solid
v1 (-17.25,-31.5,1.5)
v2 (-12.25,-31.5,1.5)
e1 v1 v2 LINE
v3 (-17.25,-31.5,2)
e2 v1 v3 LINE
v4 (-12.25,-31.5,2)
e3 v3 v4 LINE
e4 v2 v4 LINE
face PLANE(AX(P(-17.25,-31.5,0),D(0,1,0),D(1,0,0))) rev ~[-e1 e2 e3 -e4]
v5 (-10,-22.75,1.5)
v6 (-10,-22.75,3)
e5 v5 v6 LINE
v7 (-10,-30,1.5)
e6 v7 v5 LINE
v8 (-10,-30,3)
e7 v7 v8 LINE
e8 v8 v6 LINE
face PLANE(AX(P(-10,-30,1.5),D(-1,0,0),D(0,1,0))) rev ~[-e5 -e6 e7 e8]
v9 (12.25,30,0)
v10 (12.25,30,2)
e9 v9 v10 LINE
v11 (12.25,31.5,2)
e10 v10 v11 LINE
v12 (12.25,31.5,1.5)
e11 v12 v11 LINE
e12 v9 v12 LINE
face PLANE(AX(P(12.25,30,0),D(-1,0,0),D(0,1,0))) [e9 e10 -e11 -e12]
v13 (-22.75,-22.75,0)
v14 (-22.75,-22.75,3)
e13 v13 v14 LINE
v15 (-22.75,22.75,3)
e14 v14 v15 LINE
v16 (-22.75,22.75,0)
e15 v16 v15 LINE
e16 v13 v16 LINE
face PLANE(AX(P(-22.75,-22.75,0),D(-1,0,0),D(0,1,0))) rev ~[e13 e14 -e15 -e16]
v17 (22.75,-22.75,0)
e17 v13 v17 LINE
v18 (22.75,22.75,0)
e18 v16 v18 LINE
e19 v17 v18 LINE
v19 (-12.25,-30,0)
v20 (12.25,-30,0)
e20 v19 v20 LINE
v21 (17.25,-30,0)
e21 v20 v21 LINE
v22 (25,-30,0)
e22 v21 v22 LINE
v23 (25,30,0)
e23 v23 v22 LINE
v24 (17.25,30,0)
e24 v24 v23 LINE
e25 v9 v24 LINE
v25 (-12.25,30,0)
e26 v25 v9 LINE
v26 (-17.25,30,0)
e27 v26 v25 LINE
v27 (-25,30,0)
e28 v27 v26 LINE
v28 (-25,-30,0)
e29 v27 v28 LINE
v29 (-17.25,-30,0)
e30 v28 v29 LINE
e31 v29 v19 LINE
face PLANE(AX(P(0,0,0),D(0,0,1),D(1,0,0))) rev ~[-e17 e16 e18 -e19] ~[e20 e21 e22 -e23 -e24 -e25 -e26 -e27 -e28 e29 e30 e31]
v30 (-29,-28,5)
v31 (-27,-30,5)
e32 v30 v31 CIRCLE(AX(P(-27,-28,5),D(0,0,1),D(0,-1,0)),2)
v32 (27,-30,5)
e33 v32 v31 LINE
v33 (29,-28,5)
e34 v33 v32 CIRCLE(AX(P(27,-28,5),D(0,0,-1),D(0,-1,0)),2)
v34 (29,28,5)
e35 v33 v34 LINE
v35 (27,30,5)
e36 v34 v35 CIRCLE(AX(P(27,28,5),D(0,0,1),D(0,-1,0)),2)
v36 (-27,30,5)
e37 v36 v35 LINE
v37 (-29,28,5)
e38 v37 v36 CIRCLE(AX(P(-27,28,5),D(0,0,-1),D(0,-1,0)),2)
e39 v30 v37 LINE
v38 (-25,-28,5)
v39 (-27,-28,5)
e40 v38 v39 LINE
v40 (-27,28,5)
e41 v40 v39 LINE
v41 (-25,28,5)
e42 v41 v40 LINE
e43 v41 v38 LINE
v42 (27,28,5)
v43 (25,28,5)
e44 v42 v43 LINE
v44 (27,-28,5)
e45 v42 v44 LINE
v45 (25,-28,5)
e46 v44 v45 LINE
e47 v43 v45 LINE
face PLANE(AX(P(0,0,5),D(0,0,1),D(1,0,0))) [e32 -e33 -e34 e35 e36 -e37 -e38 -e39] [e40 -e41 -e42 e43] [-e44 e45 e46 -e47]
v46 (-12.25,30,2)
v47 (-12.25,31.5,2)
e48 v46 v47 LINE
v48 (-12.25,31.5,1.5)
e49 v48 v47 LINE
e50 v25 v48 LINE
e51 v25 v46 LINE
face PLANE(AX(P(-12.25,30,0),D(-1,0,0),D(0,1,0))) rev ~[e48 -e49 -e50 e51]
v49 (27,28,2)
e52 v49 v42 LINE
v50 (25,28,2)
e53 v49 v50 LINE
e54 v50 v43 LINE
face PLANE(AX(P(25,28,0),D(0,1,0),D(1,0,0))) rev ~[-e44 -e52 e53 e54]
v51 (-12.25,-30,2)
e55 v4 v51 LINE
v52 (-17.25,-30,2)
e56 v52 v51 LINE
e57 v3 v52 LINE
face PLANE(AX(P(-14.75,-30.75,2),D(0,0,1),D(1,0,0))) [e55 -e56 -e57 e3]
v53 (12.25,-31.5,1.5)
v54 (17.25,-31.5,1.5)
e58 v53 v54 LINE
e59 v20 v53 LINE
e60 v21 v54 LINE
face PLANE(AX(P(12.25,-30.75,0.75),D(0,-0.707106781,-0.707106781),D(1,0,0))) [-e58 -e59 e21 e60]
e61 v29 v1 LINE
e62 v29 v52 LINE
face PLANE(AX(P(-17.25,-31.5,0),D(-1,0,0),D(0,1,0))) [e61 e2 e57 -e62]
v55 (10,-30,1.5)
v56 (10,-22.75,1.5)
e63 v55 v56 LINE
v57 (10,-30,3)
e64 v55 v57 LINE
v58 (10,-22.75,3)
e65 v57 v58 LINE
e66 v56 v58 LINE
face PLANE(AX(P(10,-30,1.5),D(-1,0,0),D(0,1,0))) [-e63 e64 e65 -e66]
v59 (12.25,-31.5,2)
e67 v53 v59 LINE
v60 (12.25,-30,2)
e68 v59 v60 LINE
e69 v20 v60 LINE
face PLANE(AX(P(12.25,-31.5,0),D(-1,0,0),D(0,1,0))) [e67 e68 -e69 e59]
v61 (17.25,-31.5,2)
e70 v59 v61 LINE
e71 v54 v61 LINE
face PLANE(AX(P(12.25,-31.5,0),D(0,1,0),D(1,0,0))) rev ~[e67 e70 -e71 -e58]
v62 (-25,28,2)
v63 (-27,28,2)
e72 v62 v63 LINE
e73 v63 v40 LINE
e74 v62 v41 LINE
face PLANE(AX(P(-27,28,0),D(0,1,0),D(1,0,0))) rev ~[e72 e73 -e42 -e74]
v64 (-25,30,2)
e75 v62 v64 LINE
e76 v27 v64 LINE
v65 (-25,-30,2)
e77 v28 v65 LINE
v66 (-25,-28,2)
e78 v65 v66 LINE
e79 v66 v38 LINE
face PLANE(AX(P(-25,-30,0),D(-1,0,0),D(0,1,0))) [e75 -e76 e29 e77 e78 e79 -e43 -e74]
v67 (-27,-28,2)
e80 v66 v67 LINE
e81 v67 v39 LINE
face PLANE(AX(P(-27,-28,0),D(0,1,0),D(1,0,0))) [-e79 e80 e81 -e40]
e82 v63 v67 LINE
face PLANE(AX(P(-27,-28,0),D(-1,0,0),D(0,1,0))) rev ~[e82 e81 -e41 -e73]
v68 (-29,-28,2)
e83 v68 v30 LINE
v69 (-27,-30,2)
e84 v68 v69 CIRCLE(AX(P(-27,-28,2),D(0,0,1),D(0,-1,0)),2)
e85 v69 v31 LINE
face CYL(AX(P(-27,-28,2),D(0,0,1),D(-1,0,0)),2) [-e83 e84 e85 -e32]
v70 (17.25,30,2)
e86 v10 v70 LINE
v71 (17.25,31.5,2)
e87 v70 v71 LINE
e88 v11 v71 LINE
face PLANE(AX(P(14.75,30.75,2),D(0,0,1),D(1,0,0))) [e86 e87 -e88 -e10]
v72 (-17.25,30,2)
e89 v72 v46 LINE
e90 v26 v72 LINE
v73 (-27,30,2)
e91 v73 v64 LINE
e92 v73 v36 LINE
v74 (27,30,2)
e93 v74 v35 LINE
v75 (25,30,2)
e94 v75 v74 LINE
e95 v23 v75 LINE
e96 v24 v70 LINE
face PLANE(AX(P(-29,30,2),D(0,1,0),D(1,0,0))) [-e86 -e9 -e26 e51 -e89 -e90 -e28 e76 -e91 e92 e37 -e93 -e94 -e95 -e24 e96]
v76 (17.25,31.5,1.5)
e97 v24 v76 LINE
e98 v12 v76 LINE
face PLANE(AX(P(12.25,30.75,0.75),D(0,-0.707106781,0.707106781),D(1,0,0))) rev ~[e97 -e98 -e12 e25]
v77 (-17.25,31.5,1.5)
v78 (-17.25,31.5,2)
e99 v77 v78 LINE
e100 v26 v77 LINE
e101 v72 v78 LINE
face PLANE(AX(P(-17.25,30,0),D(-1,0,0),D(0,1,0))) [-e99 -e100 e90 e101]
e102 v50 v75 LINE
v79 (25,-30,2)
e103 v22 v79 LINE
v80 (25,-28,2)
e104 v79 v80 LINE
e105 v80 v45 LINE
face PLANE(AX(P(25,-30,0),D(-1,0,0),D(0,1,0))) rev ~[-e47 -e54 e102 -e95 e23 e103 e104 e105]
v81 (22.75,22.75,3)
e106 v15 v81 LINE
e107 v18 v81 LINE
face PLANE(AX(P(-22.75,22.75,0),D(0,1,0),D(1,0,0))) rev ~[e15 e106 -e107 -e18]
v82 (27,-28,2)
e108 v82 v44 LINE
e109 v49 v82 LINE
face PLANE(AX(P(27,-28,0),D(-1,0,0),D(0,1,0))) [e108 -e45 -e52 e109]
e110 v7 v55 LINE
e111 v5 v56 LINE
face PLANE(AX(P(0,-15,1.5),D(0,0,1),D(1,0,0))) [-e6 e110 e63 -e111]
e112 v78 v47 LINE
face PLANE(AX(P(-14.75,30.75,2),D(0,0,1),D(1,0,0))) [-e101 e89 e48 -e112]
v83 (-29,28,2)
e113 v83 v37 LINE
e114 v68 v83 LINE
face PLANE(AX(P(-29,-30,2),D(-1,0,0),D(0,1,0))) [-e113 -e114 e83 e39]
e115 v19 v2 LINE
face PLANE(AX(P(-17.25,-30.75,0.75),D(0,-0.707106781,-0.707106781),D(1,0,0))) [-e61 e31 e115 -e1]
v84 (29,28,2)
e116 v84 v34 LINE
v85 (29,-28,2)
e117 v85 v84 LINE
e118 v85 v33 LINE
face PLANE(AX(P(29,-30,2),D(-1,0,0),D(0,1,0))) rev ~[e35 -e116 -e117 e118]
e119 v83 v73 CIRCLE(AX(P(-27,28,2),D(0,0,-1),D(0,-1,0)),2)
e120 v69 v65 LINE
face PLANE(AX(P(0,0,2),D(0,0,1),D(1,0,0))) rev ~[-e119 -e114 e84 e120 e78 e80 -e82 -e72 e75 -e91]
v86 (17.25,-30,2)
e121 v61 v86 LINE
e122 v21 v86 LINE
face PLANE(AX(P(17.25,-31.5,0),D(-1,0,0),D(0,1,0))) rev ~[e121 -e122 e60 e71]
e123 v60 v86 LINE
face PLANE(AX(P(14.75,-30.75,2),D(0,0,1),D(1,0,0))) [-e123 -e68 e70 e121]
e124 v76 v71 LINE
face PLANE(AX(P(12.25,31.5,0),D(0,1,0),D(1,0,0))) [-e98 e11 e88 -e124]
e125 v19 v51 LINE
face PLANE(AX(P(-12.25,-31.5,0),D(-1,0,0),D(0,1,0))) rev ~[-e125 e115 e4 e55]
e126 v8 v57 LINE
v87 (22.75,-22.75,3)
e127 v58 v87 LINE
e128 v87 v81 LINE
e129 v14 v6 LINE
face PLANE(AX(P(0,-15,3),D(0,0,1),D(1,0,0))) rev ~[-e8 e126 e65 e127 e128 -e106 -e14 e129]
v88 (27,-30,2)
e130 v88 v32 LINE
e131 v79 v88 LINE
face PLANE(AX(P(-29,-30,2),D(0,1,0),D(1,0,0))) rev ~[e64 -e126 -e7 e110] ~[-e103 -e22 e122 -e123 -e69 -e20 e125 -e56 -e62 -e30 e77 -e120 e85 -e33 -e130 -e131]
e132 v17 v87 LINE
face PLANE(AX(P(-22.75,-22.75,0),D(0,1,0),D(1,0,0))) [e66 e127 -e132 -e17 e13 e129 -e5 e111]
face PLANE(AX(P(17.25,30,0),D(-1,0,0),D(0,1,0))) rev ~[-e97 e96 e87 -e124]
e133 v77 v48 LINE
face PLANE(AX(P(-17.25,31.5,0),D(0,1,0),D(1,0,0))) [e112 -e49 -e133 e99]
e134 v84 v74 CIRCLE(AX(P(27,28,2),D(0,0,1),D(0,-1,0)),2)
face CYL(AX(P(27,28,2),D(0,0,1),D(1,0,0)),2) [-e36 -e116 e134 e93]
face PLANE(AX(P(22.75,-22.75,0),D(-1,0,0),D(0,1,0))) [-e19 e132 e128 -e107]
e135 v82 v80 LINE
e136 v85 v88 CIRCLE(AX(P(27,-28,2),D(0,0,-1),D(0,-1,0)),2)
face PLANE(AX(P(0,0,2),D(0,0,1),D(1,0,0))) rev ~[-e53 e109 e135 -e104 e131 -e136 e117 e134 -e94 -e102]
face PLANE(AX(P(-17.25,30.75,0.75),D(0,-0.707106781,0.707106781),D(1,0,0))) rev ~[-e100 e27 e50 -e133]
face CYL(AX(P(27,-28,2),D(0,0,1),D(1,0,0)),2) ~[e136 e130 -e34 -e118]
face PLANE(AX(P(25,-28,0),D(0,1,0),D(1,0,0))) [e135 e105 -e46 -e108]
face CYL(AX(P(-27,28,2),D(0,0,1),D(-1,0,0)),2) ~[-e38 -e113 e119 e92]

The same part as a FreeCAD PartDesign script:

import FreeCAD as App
import Part
import Sketcher
Q = App.Units.Quantity


def edges_at(feature, points):
    """Names of the edges that pass closest to the given points."""
    edges = feature.Shape.Edges
    near = lambda p: min(range(len(edges)), key=lambda i: edges[i].distToShape(Part.Vertex(*p))[0])
    return sorted({f"Edge{near(p) + 1}" for p in points})

doc = App.newDocument("Part")
body = doc.addObject("PartDesign::Body", "Body")

sketch1 = body.newObject("Sketcher::SketchObject", "Sketch")
sketch1.AttachmentSupport = (doc.getObject("XY_Plane"), [""])
sketch1.MapMode = "FlatFace"
sketch1.addGeometry([
    Part.LineSegment(App.Vector(-25, 30, 0), App.Vector(-25, -30, 0)),
    Part.LineSegment(App.Vector(-25, -30, 0), App.Vector(25, -30, 0)),
    Part.LineSegment(App.Vector(25, -30, 0), App.Vector(25, 30, 0)),
    Part.LineSegment(App.Vector(25, 30, 0), App.Vector(-25, 30, 0)),
], False)
sketch1.addConstraint([
    Sketcher.Constraint("Coincident", 0, 2, 1, 1),
    Sketcher.Constraint("Coincident", 1, 2, 2, 1),
    Sketcher.Constraint("Coincident", 2, 2, 3, 1),
    Sketcher.Constraint("Coincident", 3, 2, 0, 1),
    Sketcher.Constraint("Vertical", 0),
    Sketcher.Constraint("Horizontal", 1),
    Sketcher.Constraint("Vertical", 2),
    Sketcher.Constraint("Horizontal", 3),
    Sketcher.Constraint("Symmetric", 0, 2, 2, 2, -1, 1),
    Sketcher.Constraint("DistanceX", 1, 1, 1, 2, Q("50 mm")),
    Sketcher.Constraint("DistanceY", 0, 2, 0, 1, Q("60 mm")),
])
pad1 = body.newObject("PartDesign::Pad", "Pad")
pad1.Profile = sketch1
pad1.Length = 5

sketch2 = body.newObject("Sketcher::SketchObject", "Sketch001")
sketch2.AttachmentSupport = (doc.getObject("XY_Plane"), [""])
sketch2.MapMode = "FlatFace"
sketch2.AttachmentOffset = App.Placement(App.Vector(0, 0, 2), App.Rotation())
sketch2.addGeometry([
    Part.LineSegment(App.Vector(-29, 30, 0), App.Vector(-29, -30, 0)),
    Part.LineSegment(App.Vector(-29, -30, 0), App.Vector(29, -30, 0)),
    Part.LineSegment(App.Vector(29, -30, 0), App.Vector(29, 30, 0)),
    Part.LineSegment(App.Vector(29, 30, 0), App.Vector(-29, 30, 0)),
], False)
sketch2.addConstraint([
    Sketcher.Constraint("Coincident", 0, 2, 1, 1),
    Sketcher.Constraint("Coincident", 1, 2, 2, 1),
    Sketcher.Constraint("Coincident", 2, 2, 3, 1),
    Sketcher.Constraint("Coincident", 3, 2, 0, 1),
    Sketcher.Constraint("Vertical", 0),
    Sketcher.Constraint("Horizontal", 1),
    Sketcher.Constraint("Vertical", 2),
    Sketcher.Constraint("Horizontal", 3),
    Sketcher.Constraint("Symmetric", 0, 2, 2, 2, -1, 1),
    Sketcher.Constraint("DistanceX", 1, 1, 1, 2, Q("58 mm")),
    Sketcher.Constraint("DistanceY", 0, 2, 0, 1, Q("60 mm")),
])
pad2 = body.newObject("PartDesign::Pad", "Pad001")
pad2.Profile = sketch2
pad2.Length = 3

sketch3 = body.newObject("Sketcher::SketchObject", "Sketch002")
sketch3.AttachmentSupport = (doc.getObject("XY_Plane"), [""])
sketch3.MapMode = "FlatFace"
sketch3.addGeometry([
    Part.LineSegment(App.Vector(-23, 23, 0), App.Vector(-23, -23, 0)),
    Part.LineSegment(App.Vector(-23, -23, 0), App.Vector(23, -23, 0)),
    Part.LineSegment(App.Vector(23, -23, 0), App.Vector(23, 23, 0)),
    Part.LineSegment(App.Vector(23, 23, 0), App.Vector(-23, 23, 0)),
], False)
sketch3.addConstraint([
    Sketcher.Constraint("Coincident", 0, 2, 1, 1),
    Sketcher.Constraint("Coincident", 1, 2, 2, 1),
    Sketcher.Constraint("Coincident", 2, 2, 3, 1),
    Sketcher.Constraint("Coincident", 3, 2, 0, 1),
    Sketcher.Constraint("Vertical", 0),
    Sketcher.Constraint("Horizontal", 1),
    Sketcher.Constraint("Vertical", 2),
    Sketcher.Constraint("Horizontal", 3),
    Sketcher.Constraint("Symmetric", 0, 2, 2, 2, -1, 1),
    Sketcher.Constraint("Equal", 3, 0),
    Sketcher.Constraint("DistanceX", 1, 1, 1, 2, Q("45.5 mm")),
])
pocket1 = body.newObject("PartDesign::Pocket", "Pocket")
pocket1.Profile = sketch3
pocket1.Length = 3
pocket1.Reversed = True

sketch4 = body.newObject("Sketcher::SketchObject", "Sketch003")
sketch4.AttachmentSupport = (doc.getObject("XY_Plane"), [""])
sketch4.MapMode = "FlatFace"
sketch4.AttachmentOffset = App.Placement(App.Vector(0, 0, 1.5), App.Rotation())
sketch4.addGeometry([
    Part.LineSegment(App.Vector(-10, 0, 0), App.Vector(-10, -30, 0)),
    Part.LineSegment(App.Vector(-10, -30, 0), App.Vector(10, -30, 0)),
    Part.LineSegment(App.Vector(10, -30, 0), App.Vector(10, 0, 0)),
    Part.LineSegment(App.Vector(10, 0, 0), App.Vector(-10, 0, 0)),
], False)
sketch4.addConstraint([
    Sketcher.Constraint("Coincident", 0, 2, 1, 1),
    Sketcher.Constraint("Coincident", 1, 2, 2, 1),
    Sketcher.Constraint("Coincident", 2, 2, 3, 1),
    Sketcher.Constraint("Coincident", 3, 2, 0, 1),
    Sketcher.Constraint("Vertical", 0),
    Sketcher.Constraint("Horizontal", 1),
    Sketcher.Constraint("Vertical", 2),
    Sketcher.Constraint("Horizontal", 3),
    Sketcher.Constraint("Symmetric", 2, 2, 3, 2, -1, 1),
    Sketcher.Constraint("DistanceX", 1, 1, 1, 2, Q("20 mm")),
    Sketcher.Constraint("DistanceY", 0, 2, 0, 1, Q("30 mm")),
])
pocket2 = body.newObject("PartDesign::Pocket", "Pocket001")
pocket2.Profile = sketch4
pocket2.Length = 1.5
pocket2.Reversed = True

sketch5 = body.newObject("Sketcher::SketchObject", "Sketch004")
sketch5.AttachmentSupport = (doc.getObject("XY_Plane"), [""])
sketch5.MapMode = "FlatFace"
sketch5.addGeometry([
    Part.LineSegment(App.Vector(-27, 28, 0), App.Vector(-27, -28, 0)),
    Part.LineSegment(App.Vector(-27, -28, 0), App.Vector(-25, -28, 0)),
    Part.LineSegment(App.Vector(-25, -28, 0), App.Vector(-25, 28, 0)),
    Part.LineSegment(App.Vector(-25, 28, 0), App.Vector(-27, 28, 0)),
    Part.LineSegment(App.Vector(25, 28, 0), App.Vector(25, -28, 0)),
    Part.LineSegment(App.Vector(25, -28, 0), App.Vector(27, -28, 0)),
    Part.LineSegment(App.Vector(27, -28, 0), App.Vector(27, 28, 0)),
    Part.LineSegment(App.Vector(27, 28, 0), App.Vector(25, 28, 0)),
], False)
sketch5.addConstraint([
    Sketcher.Constraint("Coincident", 0, 2, 1, 1),
    Sketcher.Constraint("Coincident", 1, 2, 2, 1),
    Sketcher.Constraint("Coincident", 2, 2, 3, 1),
    Sketcher.Constraint("Coincident", 3, 2, 0, 1),
    Sketcher.Constraint("Coincident", 4, 2, 5, 1),
    Sketcher.Constraint("Coincident", 5, 2, 6, 1),
    Sketcher.Constraint("Coincident", 6, 2, 7, 1),
    Sketcher.Constraint("Coincident", 7, 2, 4, 1),
    Sketcher.Constraint("Vertical", 0),
    Sketcher.Constraint("Horizontal", 1),
    Sketcher.Constraint("Vertical", 2),
    Sketcher.Constraint("Horizontal", 3),
    Sketcher.Constraint("Vertical", 4),
    Sketcher.Constraint("Horizontal", 5),
    Sketcher.Constraint("Vertical", 6),
    Sketcher.Constraint("Horizontal", 7),
    Sketcher.Constraint("Symmetric", 2, 2, 4, 2, -1, 1),
    Sketcher.Constraint("Symmetric", 0, 2, 6, 2, -1, 1),
    Sketcher.Constraint("Horizontal", 1, 2, 4, 2),
    Sketcher.Constraint("DistanceX", 1, 1, 1, 2, Q("2 mm")),
    Sketcher.Constraint("DistanceY", 0, 2, 0, 1, Q("56 mm")),
    Sketcher.Constraint("DistanceX", 0, 2, -1, 1, Q("27 mm")),
])
pocket3 = body.newObject("PartDesign::Pocket", "Pocket002")
pocket3.Profile = sketch5
pocket3.Length = 25
pocket3.Reversed = True
doc.recompute()

fillet = body.newObject("PartDesign::Fillet", "Fillet")
fillet.Base = (pocket3, edges_at(pocket3, [
    (29, -30, 3.5),
    (-29, -30, 3.5),
    (-29, 30, 3.5),
    (29, 30, 3.5),
]))
fillet.Radius = 2

sketch6 = body.newObject("Sketcher::SketchObject", "Sketch005")
sketch6.AttachmentSupport = (doc.getObject("XY_Plane"), [""])
sketch6.MapMode = "FlatFace"
sketch6.addGeometry([
    Part.LineSegment(App.Vector(-17.2, -30, 0), App.Vector(-17.2, -31.5, 0)),
    Part.LineSegment(App.Vector(-17.2, -31.5, 0), App.Vector(-12.2, -31.5, 0)),
    Part.LineSegment(App.Vector(-12.2, -31.5, 0), App.Vector(-12.2, -30, 0)),
    Part.LineSegment(App.Vector(-12.2, -30, 0), App.Vector(-17.2, -30, 0)),
    Part.LineSegment(App.Vector(12.2, -30, 0), App.Vector(12.2, -31.5, 0)),
    Part.LineSegment(App.Vector(12.2, -31.5, 0), App.Vector(17.2, -31.5, 0)),
    Part.LineSegment(App.Vector(17.2, -31.5, 0), App.Vector(17.2, -30, 0)),
    Part.LineSegment(App.Vector(17.2, -30, 0), App.Vector(12.2, -30, 0)),
    Part.LineSegment(App.Vector(12.2, 31.5, 0), App.Vector(12.2, 30, 0)),
    Part.LineSegment(App.Vector(12.2, 30, 0), App.Vector(17.2, 30, 0)),
    Part.LineSegment(App.Vector(17.2, 30, 0), App.Vector(17.2, 31.5, 0)),
    Part.LineSegment(App.Vector(17.2, 31.5, 0), App.Vector(12.2, 31.5, 0)),
    Part.LineSegment(App.Vector(-17.2, 31.5, 0), App.Vector(-17.2, 30, 0)),
    Part.LineSegment(App.Vector(-17.2, 30, 0), App.Vector(-12.2, 30, 0)),
    Part.LineSegment(App.Vector(-12.2, 30, 0), App.Vector(-12.2, 31.5, 0)),
    Part.LineSegment(App.Vector(-12.2, 31.5, 0), App.Vector(-17.2, 31.5, 0)),
], False)
sketch6.addConstraint([
    Sketcher.Constraint("Coincident", 0, 2, 1, 1),
    Sketcher.Constraint("Coincident", 1, 2, 2, 1),
    Sketcher.Constraint("Coincident", 2, 2, 3, 1),
    Sketcher.Constraint("Coincident", 3, 2, 0, 1),
    Sketcher.Constraint("Coincident", 4, 2, 5, 1),
    Sketcher.Constraint("Coincident", 5, 2, 6, 1),
    Sketcher.Constraint("Coincident", 6, 2, 7, 1),
    Sketcher.Constraint("Coincident", 7, 2, 4, 1),
    Sketcher.Constraint("Coincident", 8, 2, 9, 1),
    Sketcher.Constraint("Coincident", 9, 2, 10, 1),
    Sketcher.Constraint("Coincident", 10, 2, 11, 1),
    Sketcher.Constraint("Coincident", 11, 2, 8, 1),
    Sketcher.Constraint("Coincident", 12, 2, 13, 1),
    Sketcher.Constraint("Coincident", 13, 2, 14, 1),
    Sketcher.Constraint("Coincident", 14, 2, 15, 1),
    Sketcher.Constraint("Coincident", 15, 2, 12, 1),
    Sketcher.Constraint("Vertical", 0),
    Sketcher.Constraint("Horizontal", 1),
    Sketcher.Constraint("Vertical", 2),
    Sketcher.Constraint("Horizontal", 3),
    Sketcher.Constraint("Vertical", 4),
    Sketcher.Constraint("Horizontal", 5),
    Sketcher.Constraint("Vertical", 6),
    Sketcher.Constraint("Horizontal", 7),
    Sketcher.Constraint("Vertical", 8),
    Sketcher.Constraint("Horizontal", 9),
    Sketcher.Constraint("Vertical", 10),
    Sketcher.Constraint("Horizontal", 11),
    Sketcher.Constraint("Vertical", 12),
    Sketcher.Constraint("Horizontal", 13),
    Sketcher.Constraint("Vertical", 14),
    Sketcher.Constraint("Horizontal", 15),
    Sketcher.Constraint("Symmetric", 2, 2, 8, 2, -1, 1),
    Sketcher.Constraint("Symmetric", 0, 2, 10, 2, -1, 1),
    Sketcher.Constraint("Symmetric", 6, 2, 12, 2, -1, 1),
    Sketcher.Constraint("Symmetric", 4, 2, 14, 2, -1, 1),
    Sketcher.Constraint("Symmetric", 1, 2, 4, 2, -2),
    Sketcher.Constraint("Symmetric", 3, 2, 6, 2, -2),
    Sketcher.Constraint("DistanceX", 1, 1, 1, 2, Q("5 mm")),
    Sketcher.Constraint("DistanceY", 0, 2, 0, 1, Q("1.5 mm")),
    Sketcher.Constraint("DistanceY", 2, 2, -1, 1, Q("30 mm")),
    Sketcher.Constraint("DistanceX", 1, 2, 4, 2, Q("24.5 mm")),
])
pad3 = body.newObject("PartDesign::Pad", "Pad002")
pad3.Profile = sketch6
pad3.Length = 2
doc.recompute()

chamfer = body.newObject("PartDesign::Chamfer", "Chamfer")
chamfer.Base = (pad3, edges_at(pad3, [
    (-14.75, -31.5, 0),
    (14.75, -31.5, 0),
    (14.75, 31.5, 0),
    (-14.75, 31.5, 0),
]))
chamfer.Size = 1.5

doc.recompute()
